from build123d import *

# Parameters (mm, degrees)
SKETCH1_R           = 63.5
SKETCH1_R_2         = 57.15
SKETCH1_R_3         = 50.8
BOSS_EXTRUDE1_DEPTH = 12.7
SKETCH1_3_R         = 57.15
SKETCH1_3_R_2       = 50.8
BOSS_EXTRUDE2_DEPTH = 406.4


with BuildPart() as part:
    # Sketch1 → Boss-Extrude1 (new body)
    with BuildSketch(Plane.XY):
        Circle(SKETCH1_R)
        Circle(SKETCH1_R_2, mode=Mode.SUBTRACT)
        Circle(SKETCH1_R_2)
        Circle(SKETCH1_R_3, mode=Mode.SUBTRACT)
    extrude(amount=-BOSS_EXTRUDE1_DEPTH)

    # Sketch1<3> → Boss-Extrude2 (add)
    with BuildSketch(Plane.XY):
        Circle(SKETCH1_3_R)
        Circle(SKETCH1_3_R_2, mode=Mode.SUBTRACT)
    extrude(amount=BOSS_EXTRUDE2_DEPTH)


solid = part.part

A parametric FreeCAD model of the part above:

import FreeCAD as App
import Part
import Sketcher
Q = App.Units.Quantity

doc = App.newDocument("Part")
params = doc.addObject("Spreadsheet::Sheet", "Params")
for row, (alias, value) in enumerate([
    ("sketch1_diameter", "5 in"),
    ("sketch1_diameter2", "4 in"),
    ("pad1_length", "0.5 in"),
    ("sketch2_diameter", "4 in"),
    ("sketch2_diameter2", "4.5 in"),
    ("pad2_length", "16 in"),
], start=1):
    params.set(f"A{row}", alias)
    params.set(f"B{row}", "=" + value)
    params.setAlias(f"B{row}", alias)

body = doc.addObject("PartDesign::Body", "Body")

sketch1 = doc.addObject("Sketcher::SketchObject", "Sketch")
body.addObject(sketch1)
sketch1.AttachmentSupport = (doc.XY_Plane, [""])
sketch1.MapMode = "FlatFace"
sketch1.addGeometry(Part.Circle(App.Vector(0, 0, 0), App.Vector(0, 0, 1), 64), False)
sketch1.addGeometry(Part.Circle(App.Vector(0, 0, 0), App.Vector(0, 0, 1), 51), False)
sketch1.addConstraint(Sketcher.Constraint("Coincident", 0, 3, -1, 1))
sketch1.addConstraint(Sketcher.Constraint("Coincident", 1, 3, -1, 1))
sketch1.addConstraint(Sketcher.Constraint("Diameter", 0, Q("5 in")))
sketch1.addConstraint(Sketcher.Constraint("Diameter", 1, Q("4 in")))
sketch1.setExpression("Constraints[2]", "Params.sketch1_diameter")
sketch1.setExpression("Constraints[3]", "Params.sketch1_diameter2")
pad1 = doc.addObject("PartDesign::Pad", "Pad")
body.addObject(pad1)
pad1.Profile = sketch1
pad1.setExpression("Length", "Params.pad1_length")
pad1.Reversed = True

sketch2 = doc.addObject("Sketcher::SketchObject", "Sketch001")
body.addObject(sketch2)
sketch2.AttachmentSupport = (doc.XY_Plane, [""])
sketch2.MapMode = "FlatFace"
sketch2.addGeometry(Part.Circle(App.Vector(0, 0, 0), App.Vector(0, 0, 1), 57), False)
sketch2.addGeometry(Part.Circle(App.Vector(0, 0, 0), App.Vector(0, 0, 1), 51), False)
sketch2.addConstraint(Sketcher.Constraint("Coincident", 0, 3, -1, 1))
sketch2.addConstraint(Sketcher.Constraint("Coincident", 1, 3, -1, 1))
sketch2.addConstraint(Sketcher.Constraint("Diameter", 1, Q("4 in")))
sketch2.addConstraint(Sketcher.Constraint("Diameter", 0, Q("4.5 in")))
sketch2.setExpression("Constraints[2]", "Params.sketch2_diameter")
sketch2.setExpression("Constraints[3]", "Params.sketch2_diameter2")
pad2 = doc.addObject("PartDesign::Pad", "Pad001")
body.addObject(pad2)
pad2.Profile = sketch2
pad2.setExpression("Length", "Params.pad2_length")

doc.recompute()
